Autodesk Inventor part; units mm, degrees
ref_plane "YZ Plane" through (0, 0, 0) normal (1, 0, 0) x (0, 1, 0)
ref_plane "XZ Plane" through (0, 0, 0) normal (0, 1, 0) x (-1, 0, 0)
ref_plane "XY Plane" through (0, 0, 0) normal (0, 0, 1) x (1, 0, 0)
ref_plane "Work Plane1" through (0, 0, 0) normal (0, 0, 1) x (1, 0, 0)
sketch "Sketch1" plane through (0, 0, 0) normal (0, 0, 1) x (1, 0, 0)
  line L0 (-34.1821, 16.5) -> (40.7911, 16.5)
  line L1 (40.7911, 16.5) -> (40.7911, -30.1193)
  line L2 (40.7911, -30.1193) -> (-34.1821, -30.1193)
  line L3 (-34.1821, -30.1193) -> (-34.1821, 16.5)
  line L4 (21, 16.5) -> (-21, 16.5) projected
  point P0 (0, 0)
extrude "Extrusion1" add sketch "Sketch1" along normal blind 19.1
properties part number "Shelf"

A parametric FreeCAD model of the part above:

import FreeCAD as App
import Part
import Sketcher
from FreeCAD import Vector
Q = App.Units.Quantity


def add_polygon(sketch, points):
    """Adds a closed chain of lines whose ends are joined by coincident constraints."""
    first, n = sketch.GeometryCount, len(points)
    for a, b in zip(points, points[1:] + points[:1]):
        sketch.addGeometry(Part.LineSegment(App.Vector(*a, 0), App.Vector(*b, 0)), False)
    for i in range(n):
        sketch.addConstraint(Sketcher.Constraint("Coincident", first + i, 2, first + (i + 1) % n, 1))

doc = App.newDocument("Part")
body = doc.addObject("PartDesign::Body", "Body")

sketch1 = doc.addObject("Sketcher::SketchObject", "Sketch")
body.addObject(sketch1)
sketch1.AttachmentSupport = (doc.XY_Plane, [""])
sketch1.MapMode = "FlatFace"
add_polygon(sketch1, [(41, 16), (-34, 16), (-34, -30), (41, -30)])
sketch1.addConstraint([
    Sketcher.Constraint("Horizontal", 0),
    Sketcher.Constraint("Vertical", 1),
    Sketcher.Constraint("Horizontal", 2),
    Sketcher.Constraint("Vertical", 3),
    Sketcher.Constraint("DistanceY", -1, 1, 0, 2, Q("16.5 mm")),
    Sketcher.Constraint("DistanceX", 0, 2, 0, 1, Q("74.9732 mm")),
    Sketcher.Constraint("DistanceY", 1, 2, 1, 1, Q("46.6193 mm")),
    Sketcher.Constraint("DistanceX", 0, 2, -1, 1, Q("34.182 mm")),
])
pad1 = doc.addObject("PartDesign::Pad", "Pad")
body.addObject(pad1)
pad1.Profile = sketch1
pad1.Length = 19.1

doc.recompute()
